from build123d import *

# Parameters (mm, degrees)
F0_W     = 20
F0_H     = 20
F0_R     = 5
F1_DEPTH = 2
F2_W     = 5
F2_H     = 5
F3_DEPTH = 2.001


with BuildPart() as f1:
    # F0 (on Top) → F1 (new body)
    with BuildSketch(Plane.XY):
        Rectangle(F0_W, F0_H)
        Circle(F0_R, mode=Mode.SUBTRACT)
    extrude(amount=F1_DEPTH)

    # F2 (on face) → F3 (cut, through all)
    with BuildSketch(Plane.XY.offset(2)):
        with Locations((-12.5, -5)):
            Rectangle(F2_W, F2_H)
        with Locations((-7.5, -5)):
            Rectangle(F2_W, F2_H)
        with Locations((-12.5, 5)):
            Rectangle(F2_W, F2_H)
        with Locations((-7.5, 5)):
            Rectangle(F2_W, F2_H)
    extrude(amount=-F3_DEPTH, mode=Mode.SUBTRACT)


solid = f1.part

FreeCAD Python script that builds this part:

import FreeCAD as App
import Part
import Sketcher
Q = App.Units.Quantity

doc = App.newDocument("Part")
body = doc.addObject("PartDesign::Body", "Body")

# Sketch on XY plane
sketch1 = body.newObject("Sketcher::SketchObject", "Sketch")
sketch1.AttachmentSupport = (doc.getObject("XY_Plane"), [""])
sketch1.MapMode = "FlatFace"
sketch1.addGeometry([
    Part.LineSegment(App.Vector(-10, 10, 0), App.Vector(-10, -10, 0)),  # 0
    Part.LineSegment(App.Vector(-10, -10, 0), App.Vector(10, -10, 0)),  # 1
    Part.LineSegment(App.Vector(10, -10, 0), App.Vector(10, 10, 0)),  # 2
    Part.LineSegment(App.Vector(10, 10, 0), App.Vector(-10, 10, 0)),  # 3
    Part.Circle(App.Vector(0, 0, 0), App.Vector(0, 0, 1), 5),  # 4
], False)
sketch1.addConstraint([
    Sketcher.Constraint("Coincident", 0, 2, 1, 1),
    Sketcher.Constraint("Coincident", 1, 2, 2, 1),
    Sketcher.Constraint("Coincident", 2, 2, 3, 1),
    Sketcher.Constraint("Coincident", 3, 2, 0, 1),
    Sketcher.Constraint("Vertical", 0),
    Sketcher.Constraint("Horizontal", 1),
    Sketcher.Constraint("Vertical", 2),
    Sketcher.Constraint("Horizontal", 3),
    Sketcher.Constraint("Coincident", 4, 3, -1, 1),
    Sketcher.Constraint("Symmetric", 0, 2, 2, 2, -1, 1),
    Sketcher.Constraint("Equal", 3, 0),
    Sketcher.Constraint("Diameter", 4, Q("10 mm")),
    Sketcher.Constraint("DistanceX", 1, 1, 1, 2, Q("20 mm")),
])
pad1 = body.newObject("PartDesign::Pad", "Pad")
pad1.Profile = sketch1
pad1.Length = 2

# Sketch on XY plane
sketch2 = body.newObject("Sketcher::SketchObject", "Sketch001")
sketch2.AttachmentSupport = (doc.getObject("XY_Plane"), [""])
sketch2.MapMode = "FlatFace"
sketch2.AttachmentOffset = App.Placement(App.Vector(0, 0, 2), App.Rotation())
sketch2.addGeometry([
    Part.LineSegment(App.Vector(-15, -2.5, 0), App.Vector(-15, -7.5, 0)),  # 0
    Part.LineSegment(App.Vector(-15, -7.5, 0), App.Vector(-5, -7.5, 0)),  # 1
    Part.LineSegment(App.Vector(-5, -7.5, 0), App.Vector(-5, -2.5, 0)),  # 2
    Part.LineSegment(App.Vector(-5, -2.5, 0), App.Vector(-15, -2.5, 0)),  # 3
    Part.LineSegment(App.Vector(-15, 7.5, 0), App.Vector(-15, 2.5, 0)),  # 4
    Part.LineSegment(App.Vector(-15, 2.5, 0), App.Vector(-5, 2.5, 0)),  # 5
    Part.LineSegment(App.Vector(-5, 2.5, 0), App.Vector(-5, 7.5, 0)),  # 6
    Part.LineSegment(App.Vector(-5, 7.5, 0), App.Vector(-15, 7.5, 0)),  # 7
], False)
sketch2.addConstraint([
    Sketcher.Constraint("Coincident", 0, 2, 1, 1),
    Sketcher.Constraint("Coincident", 1, 2, 2, 1),
    Sketcher.Constraint("Coincident", 2, 2, 3, 1),
    Sketcher.Constraint("Coincident", 3, 2, 0, 1),
    Sketcher.Constraint("Coincident", 4, 2, 5, 1),
    Sketcher.Constraint("Coincident", 5, 2, 6, 1),
    Sketcher.Constraint("Coincident", 6, 2, 7, 1),
    Sketcher.Constraint("Coincident", 7, 2, 4, 1),
    Sketcher.Constraint("Vertical", 0),
    Sketcher.Constraint("Horizontal", 1),
    Sketcher.Constraint("Vertical", 2),
    Sketcher.Constraint("Horizontal", 3),
    Sketcher.Constraint("Vertical", 4),
    Sketcher.Constraint("Horizontal", 5),
    Sketcher.Constraint("Vertical", 6),
    Sketcher.Constraint("Horizontal", 7),
    Sketcher.Constraint("Symmetric", 3, 2, 4, 2, -1),
    Sketcher.Constraint("Symmetric", 1, 2, 6, 2, -1),
    Sketcher.Constraint("DistanceX", 1, 1, 1, 2, Q("10 mm")),
    Sketcher.Constraint("DistanceY", 0, 2, 0, 1, Q("5 mm")),
    Sketcher.Constraint("DistanceX", 0, 2, -1, 1, Q("15 mm")),
    Sketcher.Constraint("DistanceY", 3, 2, 4, 2, Q("5 mm")),
])
pocket1 = body.newObject("PartDesign::Pocket", "Pocket")
pocket1.Profile = sketch2
pocket1.Type = "ThroughAll"

doc.recompute()
